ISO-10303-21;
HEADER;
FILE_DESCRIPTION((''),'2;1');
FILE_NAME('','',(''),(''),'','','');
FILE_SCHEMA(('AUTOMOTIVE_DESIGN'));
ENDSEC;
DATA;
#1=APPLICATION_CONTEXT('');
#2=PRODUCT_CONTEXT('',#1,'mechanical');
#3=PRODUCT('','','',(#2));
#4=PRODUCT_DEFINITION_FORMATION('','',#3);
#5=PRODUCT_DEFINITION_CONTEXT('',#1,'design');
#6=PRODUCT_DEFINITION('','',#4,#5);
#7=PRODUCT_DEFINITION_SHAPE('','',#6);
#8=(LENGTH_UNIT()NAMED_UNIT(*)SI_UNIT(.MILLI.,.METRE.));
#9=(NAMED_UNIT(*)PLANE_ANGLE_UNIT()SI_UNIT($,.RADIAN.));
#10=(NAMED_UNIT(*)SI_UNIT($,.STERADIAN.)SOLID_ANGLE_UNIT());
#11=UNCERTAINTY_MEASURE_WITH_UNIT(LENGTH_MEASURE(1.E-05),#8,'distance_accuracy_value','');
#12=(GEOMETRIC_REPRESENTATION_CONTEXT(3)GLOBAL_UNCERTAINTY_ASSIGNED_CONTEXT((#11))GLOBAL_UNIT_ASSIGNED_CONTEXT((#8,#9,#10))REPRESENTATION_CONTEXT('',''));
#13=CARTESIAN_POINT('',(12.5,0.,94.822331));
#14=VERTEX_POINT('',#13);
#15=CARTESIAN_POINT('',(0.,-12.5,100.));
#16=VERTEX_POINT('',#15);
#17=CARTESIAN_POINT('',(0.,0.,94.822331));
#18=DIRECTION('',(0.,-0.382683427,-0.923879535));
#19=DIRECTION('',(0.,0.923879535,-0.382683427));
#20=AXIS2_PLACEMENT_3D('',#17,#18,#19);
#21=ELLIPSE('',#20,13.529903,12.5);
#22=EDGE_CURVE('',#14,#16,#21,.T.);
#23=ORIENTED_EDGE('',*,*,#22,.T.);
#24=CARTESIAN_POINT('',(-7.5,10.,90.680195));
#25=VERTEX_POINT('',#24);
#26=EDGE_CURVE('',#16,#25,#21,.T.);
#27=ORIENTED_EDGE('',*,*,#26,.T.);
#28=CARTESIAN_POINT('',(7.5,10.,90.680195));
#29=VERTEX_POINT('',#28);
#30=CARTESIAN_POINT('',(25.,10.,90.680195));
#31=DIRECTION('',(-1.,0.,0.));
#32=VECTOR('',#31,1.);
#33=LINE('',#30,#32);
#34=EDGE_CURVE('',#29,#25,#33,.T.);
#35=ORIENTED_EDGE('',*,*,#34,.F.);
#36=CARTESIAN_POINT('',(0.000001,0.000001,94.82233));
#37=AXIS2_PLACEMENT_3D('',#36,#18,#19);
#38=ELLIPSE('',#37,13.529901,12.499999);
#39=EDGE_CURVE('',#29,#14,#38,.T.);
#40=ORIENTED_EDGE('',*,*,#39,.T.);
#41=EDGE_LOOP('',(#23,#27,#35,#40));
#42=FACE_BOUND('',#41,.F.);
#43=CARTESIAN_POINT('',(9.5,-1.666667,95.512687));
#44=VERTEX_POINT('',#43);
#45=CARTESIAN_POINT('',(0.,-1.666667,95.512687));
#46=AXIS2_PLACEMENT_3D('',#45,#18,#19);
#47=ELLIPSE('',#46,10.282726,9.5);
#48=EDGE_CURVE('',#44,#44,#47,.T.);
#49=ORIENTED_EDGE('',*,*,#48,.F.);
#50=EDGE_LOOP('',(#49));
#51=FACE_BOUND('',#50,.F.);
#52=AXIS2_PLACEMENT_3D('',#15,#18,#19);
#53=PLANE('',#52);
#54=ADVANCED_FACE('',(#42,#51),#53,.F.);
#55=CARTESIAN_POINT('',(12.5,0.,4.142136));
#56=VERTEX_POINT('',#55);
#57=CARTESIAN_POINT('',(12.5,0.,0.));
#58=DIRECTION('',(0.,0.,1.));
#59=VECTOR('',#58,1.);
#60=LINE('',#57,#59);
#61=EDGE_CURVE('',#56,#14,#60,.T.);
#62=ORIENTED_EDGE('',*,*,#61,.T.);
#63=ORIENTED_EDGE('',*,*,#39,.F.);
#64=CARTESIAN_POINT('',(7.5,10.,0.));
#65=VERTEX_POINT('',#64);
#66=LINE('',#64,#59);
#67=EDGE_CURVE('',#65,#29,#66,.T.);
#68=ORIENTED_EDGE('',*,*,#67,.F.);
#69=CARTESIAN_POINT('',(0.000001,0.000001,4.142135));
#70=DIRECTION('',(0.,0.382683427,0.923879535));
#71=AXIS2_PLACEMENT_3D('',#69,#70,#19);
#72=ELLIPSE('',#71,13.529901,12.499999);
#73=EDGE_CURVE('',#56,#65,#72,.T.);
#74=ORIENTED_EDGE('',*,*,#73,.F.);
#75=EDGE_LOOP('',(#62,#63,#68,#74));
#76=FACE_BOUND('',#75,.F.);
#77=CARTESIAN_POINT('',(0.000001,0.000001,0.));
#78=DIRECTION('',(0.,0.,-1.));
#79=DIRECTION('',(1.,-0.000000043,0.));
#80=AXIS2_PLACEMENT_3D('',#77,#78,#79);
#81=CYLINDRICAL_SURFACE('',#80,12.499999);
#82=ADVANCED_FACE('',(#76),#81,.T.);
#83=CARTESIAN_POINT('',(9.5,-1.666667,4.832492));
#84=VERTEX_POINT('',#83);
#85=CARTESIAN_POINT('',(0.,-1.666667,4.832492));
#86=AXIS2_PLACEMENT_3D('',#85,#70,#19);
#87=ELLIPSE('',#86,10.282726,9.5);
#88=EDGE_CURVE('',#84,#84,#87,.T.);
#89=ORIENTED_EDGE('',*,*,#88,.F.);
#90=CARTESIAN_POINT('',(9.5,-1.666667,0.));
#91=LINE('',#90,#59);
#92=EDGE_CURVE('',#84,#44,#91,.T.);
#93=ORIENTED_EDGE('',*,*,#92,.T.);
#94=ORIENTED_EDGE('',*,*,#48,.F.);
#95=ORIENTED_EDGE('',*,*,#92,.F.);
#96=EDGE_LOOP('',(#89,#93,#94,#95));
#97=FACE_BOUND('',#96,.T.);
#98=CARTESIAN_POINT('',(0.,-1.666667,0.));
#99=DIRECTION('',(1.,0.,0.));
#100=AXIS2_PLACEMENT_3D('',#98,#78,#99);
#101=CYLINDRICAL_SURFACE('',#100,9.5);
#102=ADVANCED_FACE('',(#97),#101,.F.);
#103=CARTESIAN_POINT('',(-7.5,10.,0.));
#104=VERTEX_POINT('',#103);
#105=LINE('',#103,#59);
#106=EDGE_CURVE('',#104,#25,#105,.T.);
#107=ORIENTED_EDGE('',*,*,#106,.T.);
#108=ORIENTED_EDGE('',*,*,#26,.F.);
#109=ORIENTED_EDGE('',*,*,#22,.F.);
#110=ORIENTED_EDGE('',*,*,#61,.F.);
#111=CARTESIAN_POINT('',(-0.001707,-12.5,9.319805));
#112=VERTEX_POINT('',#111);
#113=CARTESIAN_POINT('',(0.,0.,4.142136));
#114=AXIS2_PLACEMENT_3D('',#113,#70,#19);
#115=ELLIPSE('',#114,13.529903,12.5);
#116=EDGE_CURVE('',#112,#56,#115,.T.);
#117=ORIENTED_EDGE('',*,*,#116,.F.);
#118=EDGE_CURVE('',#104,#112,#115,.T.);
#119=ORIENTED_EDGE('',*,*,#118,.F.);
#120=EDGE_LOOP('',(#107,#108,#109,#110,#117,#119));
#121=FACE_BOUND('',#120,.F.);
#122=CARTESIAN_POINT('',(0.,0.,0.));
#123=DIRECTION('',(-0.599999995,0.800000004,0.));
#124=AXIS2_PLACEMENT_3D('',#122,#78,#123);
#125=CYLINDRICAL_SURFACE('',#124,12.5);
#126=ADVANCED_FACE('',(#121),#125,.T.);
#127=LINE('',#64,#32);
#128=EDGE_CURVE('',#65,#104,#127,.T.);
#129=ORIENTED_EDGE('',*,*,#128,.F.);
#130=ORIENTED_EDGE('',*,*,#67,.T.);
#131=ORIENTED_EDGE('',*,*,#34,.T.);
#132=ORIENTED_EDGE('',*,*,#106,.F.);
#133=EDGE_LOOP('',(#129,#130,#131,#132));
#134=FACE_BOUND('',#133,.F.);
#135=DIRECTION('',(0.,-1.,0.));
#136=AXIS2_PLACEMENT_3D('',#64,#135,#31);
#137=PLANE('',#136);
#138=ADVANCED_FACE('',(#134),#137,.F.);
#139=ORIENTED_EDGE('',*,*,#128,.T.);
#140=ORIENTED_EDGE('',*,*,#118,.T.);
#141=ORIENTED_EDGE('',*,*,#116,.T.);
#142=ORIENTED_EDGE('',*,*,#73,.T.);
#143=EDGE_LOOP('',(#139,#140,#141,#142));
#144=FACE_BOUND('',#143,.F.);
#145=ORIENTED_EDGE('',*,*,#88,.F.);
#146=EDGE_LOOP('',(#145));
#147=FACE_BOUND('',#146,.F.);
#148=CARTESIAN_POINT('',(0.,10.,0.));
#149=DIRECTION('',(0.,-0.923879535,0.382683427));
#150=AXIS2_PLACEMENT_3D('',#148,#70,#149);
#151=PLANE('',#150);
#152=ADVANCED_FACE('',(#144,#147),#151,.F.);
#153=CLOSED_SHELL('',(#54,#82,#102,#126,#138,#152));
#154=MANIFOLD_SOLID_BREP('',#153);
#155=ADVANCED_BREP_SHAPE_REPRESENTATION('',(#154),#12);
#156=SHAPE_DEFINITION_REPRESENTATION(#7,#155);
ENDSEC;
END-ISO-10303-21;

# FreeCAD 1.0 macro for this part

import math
import FreeCAD as App
import Part
import Sketcher
Q = App.Units.Quantity

doc = App.newDocument("Part")
params = doc.addObject("Spreadsheet::Sheet", "Params")
for row, (alias, value) in enumerate([
    ("sketch1_diameter", "19 mm"),
    ("sketch1_radius", "12.5 mm"),
    ("sketch1_width", "15 mm"),
    ("pad1_length", "100 mm"),
    ("sketch2_width", "22.5 mm"),
    ("pad2_length", "25 mm"),
    ("pad2_length2", "25 mm"),
], start=1):
    params.set(f"A{row}", alias)
    params.set(f"B{row}", "=" + value)
    params.setAlias(f"B{row}", alias)

body = doc.addObject("PartDesign::Body", "Body")

# Sketch on XY plane
sketch1 = doc.addObject("Sketcher::SketchObject", "Sketch")
body.addObject(sketch1)
sketch1.AttachmentSupport = (doc.XY_Plane, [""])
sketch1.MapMode = "FlatFace"
sketch1.addGeometry([
    Part.ArcOfCircle(Part.Circle(App.Vector(0, 0, 0), App.Vector(0, 0, 1), 13), math.radians(127), math.radians(360)),
    Part.ArcOfCircle(Part.Circle(App.Vector(0, 0, 0), App.Vector(0, 0, 1), 12), math.radians(0), math.radians(53)),
    Part.LineSegment(App.Vector(8, 10, 0), App.Vector(-8, 10, 0)),
    Part.Circle(App.Vector(0, -2, 0), App.Vector(0, 0, 1), 10),
], False)
sketch1.addConstraint([
    Sketcher.Constraint("Tangent", 0, 2, 1, 1),
    Sketcher.Constraint("Coincident", 1, 2, 2, 1),
    Sketcher.Constraint("Coincident", 2, 2, 0, 1),
    Sketcher.Constraint("Horizontal", 2),
    Sketcher.Constraint("Coincident", 0, 3, -1, 1),
    Sketcher.Constraint("Equal", 0, 1),
    Sketcher.Constraint("PointOnObject", 3, 3, -2),
    Sketcher.Constraint("PointOnObject", 0, 2, -1),
    Sketcher.Constraint("Diameter", 3, Q("19 mm")),
    Sketcher.Constraint("Radius", 0, Q("12.5 mm")),
    Sketcher.Constraint("DistanceX", 2, 2, 2, 1, Q("15 mm")),
    Sketcher.Constraint("DistanceY", 3, 3, -1, 1, Q("1.666667 mm")),
])
sketch1.setExpression("Constraints[8]", "Params.sketch1_diameter")
sketch1.setExpression("Constraints[9]", "Params.sketch1_radius")
sketch1.setExpression("Constraints[10]", "Params.sketch1_width")
pad1 = doc.addObject("PartDesign::Pad", "Pad")
body.addObject(pad1)
pad1.Profile = sketch1
pad1.setExpression("Length", "Params.pad1_length")
body2 = doc.addObject("PartDesign::Body", "Body001")
body2.AllowCompound = True

# Sketch on YZ plane
sketch2 = doc.addObject("Sketcher::SketchObject", "Sketch001")
body2.addObject(sketch2)
sketch2.AttachmentSupport = (doc.getObject("YZ_Plane001"), [""])
sketch2.MapMode = "FlatFace"
sketch2.addGeometry([
    Part.LineSegment(App.Vector(10, 100, 0), App.Vector(-12, 100, 0)),  # 0
    Part.LineSegment(App.Vector(-12, 100, 0), App.Vector(10, 91, 0)),  # 1
    Part.LineSegment(App.Vector(10, 91, 0), App.Vector(10, 100, 0)),  # 2
    Part.LineSegment(App.Vector(-12, 9, 0), App.Vector(-12, 0, 0)),  # 3
    Part.LineSegment(App.Vector(-12, 0, 0), App.Vector(10, 0, 0)),  # 4
    Part.LineSegment(App.Vector(10, 0, 0), App.Vector(-12, 9, 0)),  # 5
], False)
sketch2.addConstraint([
    Sketcher.Constraint("Coincident", 0, 2, 1, 1),
    Sketcher.Constraint("Coincident", 1, 2, 2, 1),
    Sketcher.Constraint("Coincident", 2, 2, 0, 1),
    Sketcher.Constraint("Coincident", 3, 2, 4, 1),
    Sketcher.Constraint("Coincident", 4, 2, 5, 1),
    Sketcher.Constraint("Coincident", 5, 2, 3, 1),
    Sketcher.Constraint("Horizontal", 0),
    Sketcher.Constraint("Vertical", 2),
    Sketcher.Constraint("Vertical", 3),
    Sketcher.Constraint("Horizontal", 4),
    Sketcher.Constraint("PointOnObject", 3, 2, -1),
    Sketcher.Constraint("Parallel", 1, 5),
    Sketcher.Constraint("Vertical", 0, 2, 3, 2),
    Sketcher.Constraint("Vertical", 2, 2, 4, 2),
    Sketcher.Constraint("DistanceX", 0, 2, 0, 1, Q("22.5 mm")),
    Sketcher.Constraint("DistanceY", -1, 1, 0, 2, Q("100 mm")),
    Sketcher.Constraint("DistanceX", -1, 1, 1, 2, Q("10 mm")),
    Sketcher.Constraint("Angle", 1, Q("-22.5 deg")),
])
sketch2.setExpression("Constraints[14]", "Params.sketch2_width")
pad2 = doc.addObject("PartDesign::Pad", "Pad001")
body2.addObject(pad2)
pad2.Profile = sketch2
pad2.Type = "TwoLengths"
pad2.setExpression("Length", "Params.pad2_length")
pad2.setExpression("Length2", "Params.pad2_length2")
doc.recompute()

boolean = doc.addObject("PartDesign::Boolean", "Boolean")
body.addObject(boolean)
boolean.Type = "Cut"
boolean.addObjects([body2])

doc.recompute()
